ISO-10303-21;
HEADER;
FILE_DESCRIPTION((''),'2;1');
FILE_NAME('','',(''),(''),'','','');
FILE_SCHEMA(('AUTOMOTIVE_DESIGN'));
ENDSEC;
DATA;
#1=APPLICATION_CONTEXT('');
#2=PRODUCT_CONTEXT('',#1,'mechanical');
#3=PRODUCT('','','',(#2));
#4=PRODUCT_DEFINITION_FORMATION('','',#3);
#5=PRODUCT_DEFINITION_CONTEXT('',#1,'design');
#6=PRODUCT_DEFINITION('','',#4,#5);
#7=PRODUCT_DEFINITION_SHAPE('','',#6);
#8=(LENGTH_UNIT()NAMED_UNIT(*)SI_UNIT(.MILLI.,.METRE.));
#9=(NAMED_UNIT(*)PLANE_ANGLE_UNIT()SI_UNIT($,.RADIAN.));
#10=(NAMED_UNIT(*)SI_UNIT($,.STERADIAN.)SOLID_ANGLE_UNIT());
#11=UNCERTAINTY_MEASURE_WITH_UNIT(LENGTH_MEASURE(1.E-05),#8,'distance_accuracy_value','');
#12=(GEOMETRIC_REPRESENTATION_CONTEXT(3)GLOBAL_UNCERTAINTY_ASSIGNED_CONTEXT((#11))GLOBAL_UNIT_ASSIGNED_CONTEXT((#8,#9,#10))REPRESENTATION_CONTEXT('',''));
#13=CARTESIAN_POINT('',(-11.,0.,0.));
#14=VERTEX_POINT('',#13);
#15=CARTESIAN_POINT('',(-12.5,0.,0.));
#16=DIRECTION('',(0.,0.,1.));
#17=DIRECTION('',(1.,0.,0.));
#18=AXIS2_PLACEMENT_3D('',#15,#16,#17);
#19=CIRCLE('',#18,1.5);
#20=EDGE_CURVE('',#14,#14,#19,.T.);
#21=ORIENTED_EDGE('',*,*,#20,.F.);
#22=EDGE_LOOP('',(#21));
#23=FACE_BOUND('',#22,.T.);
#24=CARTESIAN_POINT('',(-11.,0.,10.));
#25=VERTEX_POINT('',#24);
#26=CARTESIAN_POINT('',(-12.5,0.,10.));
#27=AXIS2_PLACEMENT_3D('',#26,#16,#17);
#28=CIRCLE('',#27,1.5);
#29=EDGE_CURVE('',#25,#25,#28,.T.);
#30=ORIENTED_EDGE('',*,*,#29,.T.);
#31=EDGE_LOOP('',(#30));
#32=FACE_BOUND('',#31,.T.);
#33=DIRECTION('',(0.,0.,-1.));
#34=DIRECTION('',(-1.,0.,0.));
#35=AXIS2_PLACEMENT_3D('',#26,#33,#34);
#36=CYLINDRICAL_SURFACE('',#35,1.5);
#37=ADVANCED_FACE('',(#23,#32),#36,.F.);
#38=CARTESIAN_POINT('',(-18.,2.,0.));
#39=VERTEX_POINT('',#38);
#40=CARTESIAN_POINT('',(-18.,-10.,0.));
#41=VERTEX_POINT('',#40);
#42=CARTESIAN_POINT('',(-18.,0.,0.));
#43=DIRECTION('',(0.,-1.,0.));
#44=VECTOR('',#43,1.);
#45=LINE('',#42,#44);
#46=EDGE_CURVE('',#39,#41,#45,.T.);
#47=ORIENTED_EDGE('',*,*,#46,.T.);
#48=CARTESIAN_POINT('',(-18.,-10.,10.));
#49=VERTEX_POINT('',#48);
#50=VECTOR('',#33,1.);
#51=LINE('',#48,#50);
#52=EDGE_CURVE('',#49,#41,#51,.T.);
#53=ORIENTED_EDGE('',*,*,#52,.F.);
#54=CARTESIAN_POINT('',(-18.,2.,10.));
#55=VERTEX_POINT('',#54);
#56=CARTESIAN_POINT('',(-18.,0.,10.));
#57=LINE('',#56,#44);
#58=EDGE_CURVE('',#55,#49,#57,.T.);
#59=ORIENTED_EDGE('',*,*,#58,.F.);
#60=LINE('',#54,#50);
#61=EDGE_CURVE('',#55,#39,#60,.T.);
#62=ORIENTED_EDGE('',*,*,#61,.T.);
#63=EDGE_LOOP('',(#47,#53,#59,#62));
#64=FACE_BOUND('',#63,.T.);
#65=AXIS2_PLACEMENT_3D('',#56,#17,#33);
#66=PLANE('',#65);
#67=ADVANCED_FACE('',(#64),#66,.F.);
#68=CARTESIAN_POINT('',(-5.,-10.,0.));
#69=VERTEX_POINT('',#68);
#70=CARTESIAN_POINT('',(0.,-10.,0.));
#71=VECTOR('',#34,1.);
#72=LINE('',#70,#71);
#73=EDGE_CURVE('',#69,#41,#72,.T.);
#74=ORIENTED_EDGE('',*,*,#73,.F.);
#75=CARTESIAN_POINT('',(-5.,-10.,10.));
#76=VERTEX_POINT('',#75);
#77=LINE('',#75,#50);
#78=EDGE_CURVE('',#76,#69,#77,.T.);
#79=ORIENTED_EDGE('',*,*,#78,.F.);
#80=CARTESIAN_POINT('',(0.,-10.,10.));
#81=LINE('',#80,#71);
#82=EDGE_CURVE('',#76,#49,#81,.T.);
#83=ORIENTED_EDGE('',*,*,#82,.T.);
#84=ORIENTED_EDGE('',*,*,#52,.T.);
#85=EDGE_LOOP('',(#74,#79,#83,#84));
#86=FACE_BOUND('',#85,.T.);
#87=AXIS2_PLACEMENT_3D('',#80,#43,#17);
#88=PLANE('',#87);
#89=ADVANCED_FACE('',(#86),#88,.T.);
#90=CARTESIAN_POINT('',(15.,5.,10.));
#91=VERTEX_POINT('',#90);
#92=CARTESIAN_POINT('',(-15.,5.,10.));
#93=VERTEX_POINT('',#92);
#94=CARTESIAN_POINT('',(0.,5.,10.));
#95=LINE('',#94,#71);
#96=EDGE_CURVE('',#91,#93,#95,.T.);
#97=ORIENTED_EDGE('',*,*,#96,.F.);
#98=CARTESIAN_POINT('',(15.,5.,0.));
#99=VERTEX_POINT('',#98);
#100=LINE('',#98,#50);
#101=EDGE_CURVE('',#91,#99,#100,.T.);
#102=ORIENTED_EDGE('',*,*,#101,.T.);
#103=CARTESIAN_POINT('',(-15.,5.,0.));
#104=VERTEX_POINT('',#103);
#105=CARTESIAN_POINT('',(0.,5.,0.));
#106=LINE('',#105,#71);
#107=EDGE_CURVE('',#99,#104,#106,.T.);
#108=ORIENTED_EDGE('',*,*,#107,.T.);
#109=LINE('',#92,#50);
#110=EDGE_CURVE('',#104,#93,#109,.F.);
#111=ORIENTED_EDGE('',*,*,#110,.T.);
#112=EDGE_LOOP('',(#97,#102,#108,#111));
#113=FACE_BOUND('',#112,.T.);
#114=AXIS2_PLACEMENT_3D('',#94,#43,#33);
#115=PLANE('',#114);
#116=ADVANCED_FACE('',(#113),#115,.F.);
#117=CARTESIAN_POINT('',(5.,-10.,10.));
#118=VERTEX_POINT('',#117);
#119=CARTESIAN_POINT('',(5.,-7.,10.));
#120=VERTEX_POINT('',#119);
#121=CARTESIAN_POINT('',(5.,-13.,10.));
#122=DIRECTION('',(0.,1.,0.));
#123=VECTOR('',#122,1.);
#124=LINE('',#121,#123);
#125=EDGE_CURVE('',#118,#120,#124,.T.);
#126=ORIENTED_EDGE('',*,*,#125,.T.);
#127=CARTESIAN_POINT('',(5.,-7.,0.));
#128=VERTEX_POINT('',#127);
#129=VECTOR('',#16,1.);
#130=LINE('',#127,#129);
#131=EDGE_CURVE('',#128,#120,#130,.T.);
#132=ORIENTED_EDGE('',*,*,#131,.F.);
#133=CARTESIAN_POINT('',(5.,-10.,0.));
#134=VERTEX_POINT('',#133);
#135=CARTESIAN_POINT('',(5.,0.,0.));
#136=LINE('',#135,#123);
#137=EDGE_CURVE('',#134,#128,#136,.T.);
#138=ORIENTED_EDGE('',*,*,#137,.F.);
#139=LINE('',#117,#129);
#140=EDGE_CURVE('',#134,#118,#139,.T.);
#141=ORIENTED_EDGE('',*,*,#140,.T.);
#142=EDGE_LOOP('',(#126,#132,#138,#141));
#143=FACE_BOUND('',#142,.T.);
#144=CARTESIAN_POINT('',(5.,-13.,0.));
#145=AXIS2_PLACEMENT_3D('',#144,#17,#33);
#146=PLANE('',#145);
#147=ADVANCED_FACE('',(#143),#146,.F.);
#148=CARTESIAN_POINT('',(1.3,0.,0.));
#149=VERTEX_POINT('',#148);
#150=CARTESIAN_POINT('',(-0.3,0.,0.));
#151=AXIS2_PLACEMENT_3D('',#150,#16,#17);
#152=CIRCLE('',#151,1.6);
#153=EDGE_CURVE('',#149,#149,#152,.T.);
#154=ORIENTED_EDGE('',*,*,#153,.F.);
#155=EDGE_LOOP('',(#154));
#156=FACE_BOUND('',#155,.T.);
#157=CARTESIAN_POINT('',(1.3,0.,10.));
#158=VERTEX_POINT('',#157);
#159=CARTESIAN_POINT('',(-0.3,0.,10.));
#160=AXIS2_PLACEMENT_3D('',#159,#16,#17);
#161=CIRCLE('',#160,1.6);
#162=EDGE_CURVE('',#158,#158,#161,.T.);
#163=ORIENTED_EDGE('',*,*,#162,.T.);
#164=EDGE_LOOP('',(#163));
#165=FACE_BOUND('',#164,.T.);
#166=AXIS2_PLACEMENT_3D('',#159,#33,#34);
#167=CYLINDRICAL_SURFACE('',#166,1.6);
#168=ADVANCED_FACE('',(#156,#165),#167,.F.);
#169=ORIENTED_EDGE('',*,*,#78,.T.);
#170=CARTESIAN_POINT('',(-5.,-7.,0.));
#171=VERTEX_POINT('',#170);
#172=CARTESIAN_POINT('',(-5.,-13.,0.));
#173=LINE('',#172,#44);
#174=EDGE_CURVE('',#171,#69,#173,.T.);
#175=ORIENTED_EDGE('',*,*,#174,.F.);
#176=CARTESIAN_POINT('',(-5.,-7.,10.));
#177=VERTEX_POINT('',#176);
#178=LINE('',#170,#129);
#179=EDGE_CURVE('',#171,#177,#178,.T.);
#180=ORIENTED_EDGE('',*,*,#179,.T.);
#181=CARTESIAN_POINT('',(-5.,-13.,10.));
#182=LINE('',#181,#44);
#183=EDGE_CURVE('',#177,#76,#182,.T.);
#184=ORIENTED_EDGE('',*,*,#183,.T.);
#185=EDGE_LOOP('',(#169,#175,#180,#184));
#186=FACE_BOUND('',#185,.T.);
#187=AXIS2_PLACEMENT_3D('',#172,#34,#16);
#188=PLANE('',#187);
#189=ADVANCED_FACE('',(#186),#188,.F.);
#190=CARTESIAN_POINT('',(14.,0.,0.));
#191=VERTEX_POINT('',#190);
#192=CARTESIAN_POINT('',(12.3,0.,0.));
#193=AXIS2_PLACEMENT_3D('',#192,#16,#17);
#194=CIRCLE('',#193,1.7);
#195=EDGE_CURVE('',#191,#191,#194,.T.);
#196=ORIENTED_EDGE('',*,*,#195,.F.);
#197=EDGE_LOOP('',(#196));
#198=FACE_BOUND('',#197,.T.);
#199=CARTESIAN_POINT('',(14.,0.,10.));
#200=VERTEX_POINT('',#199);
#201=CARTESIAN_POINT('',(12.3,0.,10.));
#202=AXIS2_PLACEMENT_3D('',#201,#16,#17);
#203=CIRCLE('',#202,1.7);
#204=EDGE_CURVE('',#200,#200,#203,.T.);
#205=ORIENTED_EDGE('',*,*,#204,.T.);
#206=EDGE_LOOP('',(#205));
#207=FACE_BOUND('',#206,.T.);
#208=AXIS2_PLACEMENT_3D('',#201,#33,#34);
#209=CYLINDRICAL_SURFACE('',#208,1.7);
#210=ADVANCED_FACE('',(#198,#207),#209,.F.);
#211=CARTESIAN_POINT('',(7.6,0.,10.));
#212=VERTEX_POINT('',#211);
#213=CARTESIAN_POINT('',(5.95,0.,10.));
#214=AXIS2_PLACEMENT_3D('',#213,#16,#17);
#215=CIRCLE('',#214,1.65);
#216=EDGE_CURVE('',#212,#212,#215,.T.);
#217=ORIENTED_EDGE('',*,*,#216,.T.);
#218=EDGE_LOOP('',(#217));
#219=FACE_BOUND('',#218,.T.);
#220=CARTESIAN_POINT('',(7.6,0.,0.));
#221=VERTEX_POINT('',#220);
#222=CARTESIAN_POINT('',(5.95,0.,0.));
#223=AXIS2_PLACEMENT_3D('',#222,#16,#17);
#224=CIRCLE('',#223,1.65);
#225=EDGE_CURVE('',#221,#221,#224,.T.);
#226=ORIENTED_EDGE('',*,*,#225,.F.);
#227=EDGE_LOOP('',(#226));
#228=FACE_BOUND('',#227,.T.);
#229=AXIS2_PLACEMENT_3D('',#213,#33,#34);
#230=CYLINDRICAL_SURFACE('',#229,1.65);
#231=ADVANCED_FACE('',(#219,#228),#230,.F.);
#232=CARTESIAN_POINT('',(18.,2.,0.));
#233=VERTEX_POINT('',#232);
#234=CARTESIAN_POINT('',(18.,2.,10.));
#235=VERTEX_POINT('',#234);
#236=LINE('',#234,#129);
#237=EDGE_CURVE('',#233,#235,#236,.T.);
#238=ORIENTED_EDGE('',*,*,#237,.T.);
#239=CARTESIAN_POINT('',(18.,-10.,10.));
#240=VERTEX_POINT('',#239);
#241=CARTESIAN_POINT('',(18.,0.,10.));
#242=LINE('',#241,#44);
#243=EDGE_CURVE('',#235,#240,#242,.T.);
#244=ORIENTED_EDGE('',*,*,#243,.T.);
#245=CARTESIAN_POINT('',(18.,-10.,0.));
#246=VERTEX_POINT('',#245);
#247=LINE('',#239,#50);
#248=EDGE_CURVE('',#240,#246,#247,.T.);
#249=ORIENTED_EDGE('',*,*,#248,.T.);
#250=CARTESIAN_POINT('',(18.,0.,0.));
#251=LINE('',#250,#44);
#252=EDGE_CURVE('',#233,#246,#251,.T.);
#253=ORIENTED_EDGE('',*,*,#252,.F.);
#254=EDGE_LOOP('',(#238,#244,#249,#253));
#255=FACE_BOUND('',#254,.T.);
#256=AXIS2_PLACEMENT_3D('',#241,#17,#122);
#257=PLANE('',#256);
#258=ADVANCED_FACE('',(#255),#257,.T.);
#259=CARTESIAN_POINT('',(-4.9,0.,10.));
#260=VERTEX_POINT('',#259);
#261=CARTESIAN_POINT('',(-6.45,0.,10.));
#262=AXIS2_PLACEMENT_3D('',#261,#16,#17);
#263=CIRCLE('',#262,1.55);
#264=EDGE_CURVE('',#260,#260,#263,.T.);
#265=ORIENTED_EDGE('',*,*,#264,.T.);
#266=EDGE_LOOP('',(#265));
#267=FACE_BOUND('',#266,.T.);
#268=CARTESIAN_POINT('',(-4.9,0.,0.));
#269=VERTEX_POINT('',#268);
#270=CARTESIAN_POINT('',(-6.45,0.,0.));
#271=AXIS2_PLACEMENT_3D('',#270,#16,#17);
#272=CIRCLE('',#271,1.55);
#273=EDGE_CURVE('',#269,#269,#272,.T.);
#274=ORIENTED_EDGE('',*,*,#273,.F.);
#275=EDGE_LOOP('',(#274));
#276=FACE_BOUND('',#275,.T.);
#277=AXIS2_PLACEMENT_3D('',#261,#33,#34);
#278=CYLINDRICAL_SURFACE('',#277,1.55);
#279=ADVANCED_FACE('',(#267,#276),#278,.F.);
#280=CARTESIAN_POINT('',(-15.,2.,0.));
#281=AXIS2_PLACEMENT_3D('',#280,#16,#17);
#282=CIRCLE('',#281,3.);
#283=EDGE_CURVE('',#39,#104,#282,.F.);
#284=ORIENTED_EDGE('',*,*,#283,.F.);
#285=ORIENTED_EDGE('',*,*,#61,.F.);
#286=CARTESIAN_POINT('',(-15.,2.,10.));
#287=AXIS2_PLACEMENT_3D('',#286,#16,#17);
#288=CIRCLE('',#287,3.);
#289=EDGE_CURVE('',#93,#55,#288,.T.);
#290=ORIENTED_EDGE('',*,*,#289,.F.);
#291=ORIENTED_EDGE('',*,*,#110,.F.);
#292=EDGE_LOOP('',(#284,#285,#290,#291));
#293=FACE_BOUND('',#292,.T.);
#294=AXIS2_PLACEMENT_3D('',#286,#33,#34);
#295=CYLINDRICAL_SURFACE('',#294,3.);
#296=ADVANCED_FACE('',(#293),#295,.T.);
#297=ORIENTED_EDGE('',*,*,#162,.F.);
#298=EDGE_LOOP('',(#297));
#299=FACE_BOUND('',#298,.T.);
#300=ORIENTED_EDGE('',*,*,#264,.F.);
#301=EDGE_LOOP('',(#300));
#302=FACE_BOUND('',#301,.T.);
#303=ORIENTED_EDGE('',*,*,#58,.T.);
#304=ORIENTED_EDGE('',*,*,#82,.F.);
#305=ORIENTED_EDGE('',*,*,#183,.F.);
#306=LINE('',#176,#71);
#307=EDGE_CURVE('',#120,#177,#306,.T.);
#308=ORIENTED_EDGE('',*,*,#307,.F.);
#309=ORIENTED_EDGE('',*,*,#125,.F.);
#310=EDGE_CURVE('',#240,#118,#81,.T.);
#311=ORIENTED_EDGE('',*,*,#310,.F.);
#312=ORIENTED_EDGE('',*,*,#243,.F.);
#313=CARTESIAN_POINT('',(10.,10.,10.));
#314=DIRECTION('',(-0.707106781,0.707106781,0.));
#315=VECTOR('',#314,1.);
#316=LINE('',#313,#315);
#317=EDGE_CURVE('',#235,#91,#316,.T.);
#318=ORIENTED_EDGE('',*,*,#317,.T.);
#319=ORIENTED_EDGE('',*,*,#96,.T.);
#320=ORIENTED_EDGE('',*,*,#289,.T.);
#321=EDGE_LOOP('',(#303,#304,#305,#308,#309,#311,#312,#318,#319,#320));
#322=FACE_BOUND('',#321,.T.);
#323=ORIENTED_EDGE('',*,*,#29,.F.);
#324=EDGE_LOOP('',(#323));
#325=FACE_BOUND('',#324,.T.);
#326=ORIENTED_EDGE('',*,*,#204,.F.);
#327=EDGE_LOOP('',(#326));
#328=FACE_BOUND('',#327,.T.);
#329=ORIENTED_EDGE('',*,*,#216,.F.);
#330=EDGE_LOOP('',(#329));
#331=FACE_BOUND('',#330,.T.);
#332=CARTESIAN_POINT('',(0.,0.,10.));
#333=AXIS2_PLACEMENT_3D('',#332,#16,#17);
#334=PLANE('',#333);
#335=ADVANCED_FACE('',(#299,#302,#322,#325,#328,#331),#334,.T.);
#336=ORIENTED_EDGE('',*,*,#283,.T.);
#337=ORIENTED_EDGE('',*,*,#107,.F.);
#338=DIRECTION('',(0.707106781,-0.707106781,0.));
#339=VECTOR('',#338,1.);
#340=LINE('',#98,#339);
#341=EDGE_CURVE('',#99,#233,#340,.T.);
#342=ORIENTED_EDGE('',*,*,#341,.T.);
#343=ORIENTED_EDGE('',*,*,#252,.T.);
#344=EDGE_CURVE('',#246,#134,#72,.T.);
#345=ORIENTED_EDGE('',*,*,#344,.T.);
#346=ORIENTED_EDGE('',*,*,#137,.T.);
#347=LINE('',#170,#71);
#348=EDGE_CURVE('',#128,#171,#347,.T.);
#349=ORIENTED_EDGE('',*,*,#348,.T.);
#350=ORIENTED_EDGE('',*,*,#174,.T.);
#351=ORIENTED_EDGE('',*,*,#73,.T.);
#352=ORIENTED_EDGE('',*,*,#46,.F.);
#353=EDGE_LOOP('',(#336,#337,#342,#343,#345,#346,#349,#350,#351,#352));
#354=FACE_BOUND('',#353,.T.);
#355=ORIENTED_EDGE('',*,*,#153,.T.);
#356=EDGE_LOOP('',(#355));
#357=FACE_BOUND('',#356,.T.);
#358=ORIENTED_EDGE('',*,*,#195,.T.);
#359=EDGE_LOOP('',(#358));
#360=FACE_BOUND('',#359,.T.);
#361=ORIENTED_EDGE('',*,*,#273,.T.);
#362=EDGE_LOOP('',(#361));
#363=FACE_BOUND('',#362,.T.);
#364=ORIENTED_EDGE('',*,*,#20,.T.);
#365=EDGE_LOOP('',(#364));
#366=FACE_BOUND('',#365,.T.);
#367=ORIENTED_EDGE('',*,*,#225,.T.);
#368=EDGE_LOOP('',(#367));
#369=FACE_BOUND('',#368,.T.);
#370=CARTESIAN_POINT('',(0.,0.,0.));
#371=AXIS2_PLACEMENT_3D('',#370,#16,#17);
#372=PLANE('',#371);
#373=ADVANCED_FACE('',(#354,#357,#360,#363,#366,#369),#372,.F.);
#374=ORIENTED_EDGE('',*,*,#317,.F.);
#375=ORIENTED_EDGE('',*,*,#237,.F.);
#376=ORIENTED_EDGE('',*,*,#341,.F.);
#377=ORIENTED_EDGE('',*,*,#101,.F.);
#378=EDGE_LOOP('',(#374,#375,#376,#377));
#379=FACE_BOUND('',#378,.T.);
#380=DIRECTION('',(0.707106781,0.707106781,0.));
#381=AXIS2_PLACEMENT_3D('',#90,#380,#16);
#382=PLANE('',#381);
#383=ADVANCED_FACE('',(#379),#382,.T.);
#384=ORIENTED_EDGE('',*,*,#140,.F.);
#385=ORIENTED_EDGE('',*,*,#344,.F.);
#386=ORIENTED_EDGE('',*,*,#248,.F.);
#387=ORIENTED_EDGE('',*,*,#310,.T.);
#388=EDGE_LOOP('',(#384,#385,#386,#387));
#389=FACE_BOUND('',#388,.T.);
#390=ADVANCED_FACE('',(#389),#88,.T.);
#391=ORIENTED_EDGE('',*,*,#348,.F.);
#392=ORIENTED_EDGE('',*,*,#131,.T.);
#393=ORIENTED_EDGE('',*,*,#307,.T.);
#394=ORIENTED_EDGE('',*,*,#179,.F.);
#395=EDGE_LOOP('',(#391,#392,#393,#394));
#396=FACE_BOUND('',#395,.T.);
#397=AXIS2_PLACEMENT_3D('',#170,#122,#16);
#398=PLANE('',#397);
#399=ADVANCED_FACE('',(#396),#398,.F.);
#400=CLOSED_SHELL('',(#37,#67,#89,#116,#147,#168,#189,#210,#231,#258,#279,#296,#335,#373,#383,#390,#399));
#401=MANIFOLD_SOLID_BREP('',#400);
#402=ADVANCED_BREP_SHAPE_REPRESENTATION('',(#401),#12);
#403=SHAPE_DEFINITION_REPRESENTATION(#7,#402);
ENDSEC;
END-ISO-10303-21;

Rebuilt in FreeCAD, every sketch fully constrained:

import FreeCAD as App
import Part
import Sketcher

V = App.Vector
Q = App.Units.Quantity


def edges_at(feature, points):
    """Names of the edges that pass closest to the given points."""
    edges = feature.Shape.Edges
    near = lambda p: min(range(len(edges)), key=lambda i: edges[i].distToShape(Part.Vertex(*p))[0])
    return sorted({f"Edge{near(p) + 1}" for p in points})


def add_polygon(sketch, points):
    """Adds a closed chain of lines whose ends are joined by coincident constraints."""
    first, n = sketch.GeometryCount, len(points)
    for a, b in zip(points, points[1:] + points[:1]):
        sketch.addGeometry(Part.LineSegment(App.Vector(*a, 0), App.Vector(*b, 0)), False)
    for i in range(n):
        sketch.addConstraint(Sketcher.Constraint("Coincident", first + i, 2, first + (i + 1) % n, 1))

doc = App.newDocument("Part")
body = doc.addObject("PartDesign::Body", "Body")

# Sketch on XY plane
sketch1 = doc.addObject("Sketcher::SketchObject", "Sketch")
body.addObject(sketch1)
sketch1.AttachmentSupport = (doc.XY_Plane, [""])
sketch1.MapMode = "FlatFace"
add_polygon(sketch1, [(-18, 5), (-18, -10), (18, -10), (18, 5)])  # lines 0-3
sketch1.addGeometry(Part.Circle(V(-12.5, 0, 0), V(0, 0, 1), 1.5), False)  # 4
sketch1.addGeometry(Part.Circle(V(-6.5, 0, 0), V(0, 0, 1), 1.6), False)  # 5
sketch1.addGeometry(Part.Circle(V(-0.3, 0, 0), V(0, 0, 1), 1.6), False)  # 6
sketch1.addGeometry(Part.Circle(V(6, 0, 0), V(0, 0, 1), 1.6), False)  # 7
sketch1.addGeometry(Part.Circle(V(12.3, 0, 0), V(0, 0, 1), 1.7), False)  # 8
sketch1.addConstraint([
    Sketcher.Constraint("Vertical", 0),
    Sketcher.Constraint("Horizontal", 1),
    Sketcher.Constraint("Vertical", 2),
    Sketcher.Constraint("Horizontal", 3),
    Sketcher.Constraint("PointOnObject", 4, 3, -1),
    Sketcher.Constraint("PointOnObject", 5, 3, -1),
    Sketcher.Constraint("PointOnObject", 6, 3, -1),
    Sketcher.Constraint("PointOnObject", 7, 3, -1),
    Sketcher.Constraint("PointOnObject", 8, 3, -1),
    Sketcher.Constraint("Diameter", 4, Q("3 mm")),
    Sketcher.Constraint("Diameter", 5, Q("3.1 mm")),
    Sketcher.Constraint("Diameter", 6, Q("3.2 mm")),
    Sketcher.Constraint("Diameter", 7, Q("3.3 mm")),
    Sketcher.Constraint("Diameter", 8, Q("3.4 mm")),
    Sketcher.Constraint("DistanceX", 1, 1, 1, 2, Q("36 mm")),
    Sketcher.Constraint("DistanceY", 0, 2, 0, 1, Q("15 mm")),
    Sketcher.Constraint("DistanceX", 0, 2, -1, 1, Q("18 mm")),
    Sketcher.Constraint("DistanceY", 0, 2, -1, 1, Q("10 mm")),
    Sketcher.Constraint("DistanceX", 4, 3, -1, 1, Q("12.5 mm")),
    Sketcher.Constraint("DistanceX", 6, 3, -1, 1, Q("0.3 mm")),
    Sketcher.Constraint("DistanceX", -1, 1, 8, 3, Q("12.3 mm")),
    Sketcher.Constraint("DistanceX", 5, 3, 7, 3, Q("12.4 mm")),
    Sketcher.Constraint("DistanceX", 5, 3, -1, 1, Q("6.45 mm")),
])
pad1 = doc.addObject("PartDesign::Pad", "Pad")
body.addObject(pad1)
pad1.Profile = sketch1
pad1.Length = 10
doc.recompute()

fillet = doc.addObject("PartDesign::Fillet", "Fillet")
body.addObject(fillet)
fillet.Base = (pad1, edges_at(pad1, [(-18, 5, 5)]))
fillet.Radius = 3
doc.recompute()

chamfer = doc.addObject("PartDesign::Chamfer", "Chamfer")
body.addObject(chamfer)
chamfer.Base = (fillet, edges_at(fillet, [(18, 5, 5)]))
chamfer.Size = 3

# Sketch on XY plane
sketch2 = doc.addObject("Sketcher::SketchObject", "Sketch001")
body.addObject(sketch2)
sketch2.AttachmentSupport = (doc.XY_Plane, [""])
sketch2.MapMode = "FlatFace"
sketch2.AttachmentOffset = App.Placement(V(0, 0, 10), App.Rotation())
add_polygon(sketch2, [(-5, -7), (-5, -13), (5, -13), (5, -7)])  # lines 0-3
sketch2.addConstraint([
    Sketcher.Constraint("Vertical", 0),
    Sketcher.Constraint("Horizontal", 1),
    Sketcher.Constraint("Vertical", 2),
    Sketcher.Constraint("Horizontal", 3),
    Sketcher.Constraint("DistanceX", 1, 1, 1, 2, Q("10 mm")),
    Sketcher.Constraint("DistanceY", 0, 2, 0, 1, Q("6 mm")),
    Sketcher.Constraint("DistanceX", 0, 2, -1, 1, Q("5 mm")),
    Sketcher.Constraint("DistanceY", 0, 2, -1, 1, Q("13 mm")),
])
pocket1 = doc.addObject("PartDesign::Pocket", "Pocket")
body.addObject(pocket1)
pocket1.Profile = sketch2
pocket1.Length = 10

doc.recompute()
